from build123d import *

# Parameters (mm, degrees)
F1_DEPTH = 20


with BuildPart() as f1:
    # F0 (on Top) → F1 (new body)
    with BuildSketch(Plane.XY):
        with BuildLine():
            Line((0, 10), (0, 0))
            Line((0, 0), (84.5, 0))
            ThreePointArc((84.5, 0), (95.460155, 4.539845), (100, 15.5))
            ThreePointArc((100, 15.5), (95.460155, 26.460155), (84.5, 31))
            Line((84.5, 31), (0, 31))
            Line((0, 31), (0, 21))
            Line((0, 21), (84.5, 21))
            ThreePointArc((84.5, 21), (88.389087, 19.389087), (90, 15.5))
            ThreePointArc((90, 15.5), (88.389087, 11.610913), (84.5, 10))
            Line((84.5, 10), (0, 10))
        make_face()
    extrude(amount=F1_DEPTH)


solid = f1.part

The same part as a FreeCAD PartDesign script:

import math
import FreeCAD as App
import Part
import Sketcher
Q = App.Units.Quantity

doc = App.newDocument("Part")
params = doc.addObject("Spreadsheet::Sheet", "Params")
for row, (alias, value) in enumerate([
    ("sketch1_radius", "15.5 mm"),
    ("sketch1_radius2", "5.500001 mm"),
    ("sketch1_width", "84.5 mm"),
    ("pad1_length", "20 mm"),
], start=1):
    params.set(f"A{row}", alias)
    params.set(f"B{row}", "=" + value)
    params.setAlias(f"B{row}", alias)

body = doc.addObject("PartDesign::Body", "Body")

# Sketch on XY plane
sketch1 = doc.addObject("Sketcher::SketchObject", "Sketch")
body.addObject(sketch1)
sketch1.AttachmentSupport = (doc.XY_Plane, [""])
sketch1.MapMode = "FlatFace"
sketch1.addGeometry(Part.LineSegment(App.Vector(0, 10, 0), App.Vector(0, 0, 0)), False)
sketch1.addGeometry(Part.LineSegment(App.Vector(0, 0, 0), App.Vector(84, 0, 0)), False)
sketch1.addGeometry(Part.ArcOfCircle(Part.Circle(App.Vector(84, 16, 0), App.Vector(0, 0, 1), 16), math.radians(-90), math.radians(0)), False)
sketch1.addGeometry(Part.ArcOfCircle(Part.Circle(App.Vector(84, 15, 0), App.Vector(0, 0, 1), 16), math.radians(0), math.radians(90)), False)
sketch1.addGeometry(Part.LineSegment(App.Vector(84, 31, 0), App.Vector(0, 31, 0)), False)
sketch1.addGeometry(Part.LineSegment(App.Vector(0, 31, 0), App.Vector(0, 21, 0)), False)
sketch1.addGeometry(Part.LineSegment(App.Vector(0, 21, 0), App.Vector(84, 21, 0)), False)
sketch1.addGeometry(Part.ArcOfCircle(Part.Circle(App.Vector(84, 15, 0), App.Vector(0, 0, 1), 6), math.radians(0), math.radians(90)), False)
sketch1.addGeometry(Part.ArcOfCircle(Part.Circle(App.Vector(84, 16, 0), App.Vector(0, 0, 1), 6), math.radians(-90), math.radians(0)), False)
sketch1.addGeometry(Part.LineSegment(App.Vector(84, 10, 0), App.Vector(0, 10, 0)), False)
sketch1.addConstraint(Sketcher.Constraint("Coincident", 0, 2, 1, 1))
sketch1.addConstraint(Sketcher.Constraint("Tangent", 1, 2, 2, 1))
sketch1.addConstraint(Sketcher.Constraint("Tangent", 2, 2, 3, 1))
sketch1.addConstraint(Sketcher.Constraint("Tangent", 3, 2, 4, 1))
sketch1.addConstraint(Sketcher.Constraint("Coincident", 4, 2, 5, 1))
sketch1.addConstraint(Sketcher.Constraint("Coincident", 5, 2, 6, 1))
sketch1.addConstraint(Sketcher.Constraint("Tangent", 6, 2, 7, 2))
sketch1.addConstraint(Sketcher.Constraint("Tangent", 7, 1, 8, 2))
sketch1.addConstraint(Sketcher.Constraint("Tangent", 8, 1, 9, 1))
sketch1.addConstraint(Sketcher.Constraint("Coincident", 9, 2, 0, 1))
sketch1.addConstraint(Sketcher.Constraint("Vertical", 0))
sketch1.addConstraint(Sketcher.Constraint("Horizontal", 1))
sketch1.addConstraint(Sketcher.Constraint("Horizontal", 4))
sketch1.addConstraint(Sketcher.Constraint("Vertical", 5))
sketch1.addConstraint(Sketcher.Constraint("Horizontal", 6))
sketch1.addConstraint(Sketcher.Constraint("Horizontal", 9))
sketch1.addConstraint(Sketcher.Constraint("Coincident", 0, 2, -1, 1))
sketch1.addConstraint(Sketcher.Constraint("Coincident", 7, 3, 2, 3))
sketch1.addConstraint(Sketcher.Constraint("Equal", 2, 3))
sketch1.addConstraint(Sketcher.Constraint("Equal", 7, 8))
sketch1.addConstraint(Sketcher.Constraint("PointOnObject", 4, 2, -2))
sketch1.addConstraint(Sketcher.Constraint("Horizontal", 8, 3, 2, 2))
sketch1.addConstraint(Sketcher.Constraint("Horizontal", 2, 2, 7, 1))
sketch1.addConstraint(Sketcher.Constraint("Radius", 2, Q("15.5 mm")))
sketch1.addConstraint(Sketcher.Constraint("Radius", 7, Q("5.500001 mm")))
sketch1.addConstraint(Sketcher.Constraint("DistanceX", 1, 1, 1, 2, Q("84.5 mm")))
sketch1.setExpression("Constraints[23]", "Params.sketch1_radius")
sketch1.setExpression("Constraints[24]", "Params.sketch1_radius2")
sketch1.setExpression("Constraints[25]", "Params.sketch1_width")
pad1 = doc.addObject("PartDesign::Pad", "Pad")
body.addObject(pad1)
pad1.Profile = sketch1
pad1.setExpression("Length", "Params.pad1_length")

doc.recompute()
